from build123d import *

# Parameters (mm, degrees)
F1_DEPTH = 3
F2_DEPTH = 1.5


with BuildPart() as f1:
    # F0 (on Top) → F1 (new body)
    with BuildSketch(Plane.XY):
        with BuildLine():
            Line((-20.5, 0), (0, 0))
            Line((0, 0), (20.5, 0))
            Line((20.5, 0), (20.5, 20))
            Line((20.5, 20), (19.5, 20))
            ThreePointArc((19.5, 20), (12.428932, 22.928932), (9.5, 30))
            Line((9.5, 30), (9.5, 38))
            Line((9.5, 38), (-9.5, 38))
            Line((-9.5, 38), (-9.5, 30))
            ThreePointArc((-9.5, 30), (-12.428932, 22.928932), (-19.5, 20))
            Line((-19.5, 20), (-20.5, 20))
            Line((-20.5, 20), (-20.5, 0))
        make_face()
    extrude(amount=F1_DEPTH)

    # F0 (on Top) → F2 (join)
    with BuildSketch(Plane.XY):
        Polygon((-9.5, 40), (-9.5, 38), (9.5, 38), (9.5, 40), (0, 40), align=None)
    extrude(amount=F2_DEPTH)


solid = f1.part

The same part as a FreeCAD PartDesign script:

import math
import FreeCAD as App
import Part
import Sketcher

doc = App.newDocument("Part")
body = doc.addObject("PartDesign::Body", "Body")

# Sketch on XY plane
sketch1 = body.newObject("Sketcher::SketchObject", "Sketch")
sketch1.AttachmentSupport = (doc.getObject("XY_Plane"), [""])
sketch1.MapMode = "FlatFace"
sketch1.addGeometry(Part.LineSegment(App.Vector(-20.5, 0, 0), App.Vector(20.5, 0, 0)), False)
sketch1.addGeometry(Part.LineSegment(App.Vector(20.5, 0, 0), App.Vector(20.5, 20, 0)), False)
sketch1.addGeometry(Part.LineSegment(App.Vector(20.5, 20, 0), App.Vector(19.5, 20, 0)), False)
sketch1.addGeometry(Part.ArcOfCircle(Part.Circle(App.Vector(19.499999, 29.999999, 0), App.Vector(0, 0, 1), 9.999999), math.radians(179.999996), math.radians(270.000004)), False)
sketch1.addGeometry(Part.LineSegment(App.Vector(9.5, 30, 0), App.Vector(9.5, 38, 0)), False)
sketch1.addGeometry(Part.LineSegment(App.Vector(9.5, 38, 0), App.Vector(-9.5, 38, 0)), False)
sketch1.addGeometry(Part.LineSegment(App.Vector(-9.5, 38, 0), App.Vector(-9.5, 30, 0)), False)
sketch1.addGeometry(Part.ArcOfCircle(Part.Circle(App.Vector(-19.499999, 29.999999, 0), App.Vector(0, 0, 1), 9.999999), math.radians(-90.000004), math.radians(0.000004)), False)
sketch1.addGeometry(Part.LineSegment(App.Vector(-19.5, 20, 0), App.Vector(-20.5, 20, 0)), False)
sketch1.addGeometry(Part.LineSegment(App.Vector(-20.5, 20, 0), App.Vector(-20.5, 0, 0)), False)
sketch1.addConstraint(Sketcher.Constraint("Coincident", 0, 2, 1, 1))
sketch1.addConstraint(Sketcher.Constraint("Coincident", 1, 2, 2, 1))
sketch1.addConstraint(Sketcher.Constraint("Tangent", 2, 2, 3, 2))
sketch1.addConstraint(Sketcher.Constraint("Tangent", 3, 1, 4, 1))
sketch1.addConstraint(Sketcher.Constraint("Coincident", 4, 2, 5, 1))
sketch1.addConstraint(Sketcher.Constraint("Coincident", 5, 2, 6, 1))
sketch1.addConstraint(Sketcher.Constraint("Tangent", 6, 2, 7, 2))
sketch1.addConstraint(Sketcher.Constraint("Tangent", 7, 1, 8, 1))
sketch1.addConstraint(Sketcher.Constraint("Coincident", 8, 2, 9, 1))
sketch1.addConstraint(Sketcher.Constraint("Coincident", 9, 2, 0, 1))
sketch1.addConstraint(Sketcher.Constraint("Horizontal", 0))
sketch1.addConstraint(Sketcher.Constraint("Vertical", 1))
sketch1.addConstraint(Sketcher.Constraint("Horizontal", 2))
sketch1.addConstraint(Sketcher.Constraint("Vertical", 4))
sketch1.addConstraint(Sketcher.Constraint("Horizontal", 5))
sketch1.addConstraint(Sketcher.Constraint("Vertical", 6))
sketch1.addConstraint(Sketcher.Constraint("Horizontal", 8))
sketch1.addConstraint(Sketcher.Constraint("Vertical", 9))
sketch1.addConstraint(Sketcher.Constraint("Equal", 3, 7))
sketch1.addConstraint(Sketcher.Constraint("Symmetric", 0, 2, 9, 2, -1, 1))
sketch1.addConstraint(Sketcher.Constraint("Symmetric", 3, 3, 7, 3, -2))
sketch1.addConstraint(Sketcher.Constraint("Radius", 3, 9.999999))
sketch1.addConstraint(Sketcher.Constraint("DistanceX", 0, 1, 0, 2, 41.0))
sketch1.addConstraint(Sketcher.Constraint("DistanceX", 2, 2, 2, 1, 1.0))
sketch1.addConstraint(Sketcher.Constraint("DistanceY", 1, 1, 1, 2, 20.0))
sketch1.addConstraint(Sketcher.Constraint("DistanceY", 4, 1, 4, 2, 8.0))
pad1 = body.newObject("PartDesign::Pad", "Pad")
pad1.Profile = sketch1
pad1.Length = 3

# Sketch on XY plane
sketch2 = body.newObject("Sketcher::SketchObject", "Sketch001")
sketch2.AttachmentSupport = (doc.getObject("XY_Plane"), [""])
sketch2.MapMode = "FlatFace"
sketch2.addGeometry(Part.LineSegment(App.Vector(-9.5, 40, 0), App.Vector(-9.5, 38, 0)), False)
sketch2.addGeometry(Part.LineSegment(App.Vector(-9.5, 38, 0), App.Vector(9.5, 38, 0)), False)
sketch2.addGeometry(Part.LineSegment(App.Vector(9.5, 38, 0), App.Vector(9.5, 40, 0)), False)
sketch2.addGeometry(Part.LineSegment(App.Vector(9.5, 40, 0), App.Vector(-9.5, 40, 0)), False)
sketch2.addConstraint(Sketcher.Constraint("Coincident", 0, 2, 1, 1))
sketch2.addConstraint(Sketcher.Constraint("Coincident", 1, 2, 2, 1))
sketch2.addConstraint(Sketcher.Constraint("Coincident", 2, 2, 3, 1))
sketch2.addConstraint(Sketcher.Constraint("Coincident", 3, 2, 0, 1))
sketch2.addConstraint(Sketcher.Constraint("Vertical", 0))
sketch2.addConstraint(Sketcher.Constraint("Horizontal", 1))
sketch2.addConstraint(Sketcher.Constraint("Vertical", 2))
sketch2.addConstraint(Sketcher.Constraint("Horizontal", 3))
sketch2.addConstraint(Sketcher.Constraint("DistanceX", 1, 1, 1, 2, 19.0))
sketch2.addConstraint(Sketcher.Constraint("DistanceY", 0, 2, 0, 1, 2.0))
sketch2.addConstraint(Sketcher.Constraint("DistanceY", -1, 1, 0, 2, 38.0))
sketch2.addConstraint(Sketcher.Constraint("DistanceX", 0, 2, -1, 1, 9.5))
pad2 = body.newObject("PartDesign::Pad", "Pad001")
pad2.Profile = sketch2
pad2.Length = 1.5

doc.recompute()
